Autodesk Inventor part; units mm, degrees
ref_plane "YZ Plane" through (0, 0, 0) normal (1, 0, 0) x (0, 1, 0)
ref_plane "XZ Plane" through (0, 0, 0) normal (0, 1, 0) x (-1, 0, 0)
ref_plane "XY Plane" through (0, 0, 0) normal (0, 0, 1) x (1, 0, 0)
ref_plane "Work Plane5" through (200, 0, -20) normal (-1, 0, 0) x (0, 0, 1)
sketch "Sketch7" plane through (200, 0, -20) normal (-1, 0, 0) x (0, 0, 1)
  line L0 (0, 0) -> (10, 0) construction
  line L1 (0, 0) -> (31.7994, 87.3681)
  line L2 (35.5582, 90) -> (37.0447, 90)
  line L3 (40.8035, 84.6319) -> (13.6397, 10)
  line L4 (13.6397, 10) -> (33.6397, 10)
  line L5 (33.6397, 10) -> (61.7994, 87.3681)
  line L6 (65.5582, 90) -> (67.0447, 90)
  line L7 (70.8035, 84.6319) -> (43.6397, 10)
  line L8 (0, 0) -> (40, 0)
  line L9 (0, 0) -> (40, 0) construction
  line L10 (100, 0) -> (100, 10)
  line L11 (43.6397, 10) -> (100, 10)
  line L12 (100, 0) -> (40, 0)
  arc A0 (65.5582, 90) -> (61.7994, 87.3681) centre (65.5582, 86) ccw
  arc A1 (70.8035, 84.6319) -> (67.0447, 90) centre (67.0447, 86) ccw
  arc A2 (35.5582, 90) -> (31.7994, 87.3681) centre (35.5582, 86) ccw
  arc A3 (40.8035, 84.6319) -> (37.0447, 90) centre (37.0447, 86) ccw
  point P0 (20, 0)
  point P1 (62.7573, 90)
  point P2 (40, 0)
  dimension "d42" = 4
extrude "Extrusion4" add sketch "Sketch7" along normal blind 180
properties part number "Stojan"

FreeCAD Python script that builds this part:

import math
import FreeCAD as App
import Part
import Sketcher
Q = App.Units.Quantity

doc = App.newDocument("Part")
body = doc.addObject("PartDesign::Body", "Body")

# Sketch on YZ plane
sketch1 = body.newObject("Sketcher::SketchObject", "Sketch")
sketch1.AttachmentSupport = (doc.getObject("YZ_Plane"), [""])
sketch1.MapMode = "FlatFace"
sketch1.AttachmentOffset = App.Placement(App.Vector(0, 0, 200), App.Rotation())
sketch1.addGeometry([
    Part.LineSegment(App.Vector(87.3681, 11.7994, 0), App.Vector(0, -20, 0)),  # 0
    Part.LineSegment(App.Vector(0, -20, 0), App.Vector(0, 80, 0)),  # 1
    Part.LineSegment(App.Vector(0, 80, 0), App.Vector(10, 80, 0)),  # 2
    Part.LineSegment(App.Vector(10, 80, 0), App.Vector(10, 23.6397, 0)),  # 3
    Part.LineSegment(App.Vector(10, 23.6397, 0), App.Vector(84.6319, 50.8035, 0)),  # 4
    Part.ArcOfCircle(Part.Circle(App.Vector(86, 47.0447, 0), App.Vector(0, 0, 1), 4.000034), math.radians(0), math.radians(110.000117)),  # 5
    Part.LineSegment(App.Vector(90, 47.0447, 0), App.Vector(90, 45.5582, 0)),  # 6
    Part.ArcOfCircle(Part.Circle(App.Vector(86, 45.5582, 0), App.Vector(0, 0, 1), 4), math.radians(-69.999883), math.radians(0)),  # 7
    Part.LineSegment(App.Vector(87.3681, 41.7994, 0), App.Vector(10, 13.6397, 0)),  # 8
    Part.LineSegment(App.Vector(10, 13.6397, 0), App.Vector(10, -6.3603, 0)),  # 9
    Part.LineSegment(App.Vector(10, -6.3603, 0), App.Vector(84.6319, 20.8035, 0)),  # 10
    Part.ArcOfCircle(Part.Circle(App.Vector(86, 17.0447, 0), App.Vector(0, 0, 1), 4.000034), math.radians(0), math.radians(110.000117)),  # 11
    Part.LineSegment(App.Vector(90, 17.0447, 0), App.Vector(90, 15.5582, 0)),  # 12
    Part.ArcOfCircle(Part.Circle(App.Vector(86, 15.5582, 0), App.Vector(0, 0, 1), 4), math.radians(-69.999883), math.radians(0)),  # 13
], False)
sketch1.addConstraint([
    Sketcher.Constraint("Coincident", 0, 2, 1, 1),
    Sketcher.Constraint("Coincident", 1, 2, 2, 1),
    Sketcher.Constraint("Coincident", 2, 2, 3, 1),
    Sketcher.Constraint("Coincident", 3, 2, 4, 1),
    Sketcher.Constraint("Tangent", 4, 2, 5, 2),
    Sketcher.Constraint("Tangent", 5, 1, 6, 1),
    Sketcher.Constraint("Tangent", 6, 2, 7, 2),
    Sketcher.Constraint("Tangent", 7, 1, 8, 1),
    Sketcher.Constraint("Coincident", 8, 2, 9, 1),
    Sketcher.Constraint("Coincident", 9, 2, 10, 1),
    Sketcher.Constraint("Tangent", 10, 2, 11, 2),
    Sketcher.Constraint("Tangent", 11, 1, 12, 1),
    Sketcher.Constraint("Tangent", 12, 2, 13, 2),
    Sketcher.Constraint("Tangent", 13, 1, 0, 1),
    Sketcher.Constraint("Vertical", 1),
    Sketcher.Constraint("Horizontal", 2),
    Sketcher.Constraint("Vertical", 3),
    Sketcher.Constraint("Vertical", 6),
    Sketcher.Constraint("Vertical", 9),
    Sketcher.Constraint("Vertical", 12),
    Sketcher.Constraint("Equal", 5, 7),
    Sketcher.Constraint("Equal", 7, 11),
    Sketcher.Constraint("Equal", 11, 13),
    Sketcher.Constraint("PointOnObject", 0, 2, -2),
    Sketcher.Constraint("Parallel", 0, 4),
    Sketcher.Constraint("Parallel", 4, 8),
    Sketcher.Constraint("Parallel", 8, 10),
    Sketcher.Constraint("Vertical", 7, 3, 11, 3),
    Sketcher.Constraint("Vertical", 3, 2, 8, 2),
    Sketcher.Constraint("Equal", 6, 12),
    Sketcher.Constraint("Radius", 5, Q("4 mm")),
    Sketcher.Constraint("DistanceX", 2, 1, 2, 2, Q("10 mm")),
    Sketcher.Constraint("DistanceY", 1, 1, 1, 2, Q("100 mm")),
    Sketcher.Constraint("DistanceY", 9, 2, 9, 1, Q("20 mm")),
    Sketcher.Constraint("Angle", 0, Q("-160 deg")),
    Sketcher.Constraint("DistanceX", -1, 1, 5, 3, Q("86 mm")),
    Sketcher.Constraint("DistanceY", 0, 2, -1, 1, Q("20 mm")),
    Sketcher.Constraint("DistanceY", 11, 3, 5, 3, Q("30 mm")),
])
pad1 = body.newObject("PartDesign::Pad", "Pad")
pad1.Profile = sketch1
pad1.Length = 180
pad1.Reversed = True

doc.recompute()
